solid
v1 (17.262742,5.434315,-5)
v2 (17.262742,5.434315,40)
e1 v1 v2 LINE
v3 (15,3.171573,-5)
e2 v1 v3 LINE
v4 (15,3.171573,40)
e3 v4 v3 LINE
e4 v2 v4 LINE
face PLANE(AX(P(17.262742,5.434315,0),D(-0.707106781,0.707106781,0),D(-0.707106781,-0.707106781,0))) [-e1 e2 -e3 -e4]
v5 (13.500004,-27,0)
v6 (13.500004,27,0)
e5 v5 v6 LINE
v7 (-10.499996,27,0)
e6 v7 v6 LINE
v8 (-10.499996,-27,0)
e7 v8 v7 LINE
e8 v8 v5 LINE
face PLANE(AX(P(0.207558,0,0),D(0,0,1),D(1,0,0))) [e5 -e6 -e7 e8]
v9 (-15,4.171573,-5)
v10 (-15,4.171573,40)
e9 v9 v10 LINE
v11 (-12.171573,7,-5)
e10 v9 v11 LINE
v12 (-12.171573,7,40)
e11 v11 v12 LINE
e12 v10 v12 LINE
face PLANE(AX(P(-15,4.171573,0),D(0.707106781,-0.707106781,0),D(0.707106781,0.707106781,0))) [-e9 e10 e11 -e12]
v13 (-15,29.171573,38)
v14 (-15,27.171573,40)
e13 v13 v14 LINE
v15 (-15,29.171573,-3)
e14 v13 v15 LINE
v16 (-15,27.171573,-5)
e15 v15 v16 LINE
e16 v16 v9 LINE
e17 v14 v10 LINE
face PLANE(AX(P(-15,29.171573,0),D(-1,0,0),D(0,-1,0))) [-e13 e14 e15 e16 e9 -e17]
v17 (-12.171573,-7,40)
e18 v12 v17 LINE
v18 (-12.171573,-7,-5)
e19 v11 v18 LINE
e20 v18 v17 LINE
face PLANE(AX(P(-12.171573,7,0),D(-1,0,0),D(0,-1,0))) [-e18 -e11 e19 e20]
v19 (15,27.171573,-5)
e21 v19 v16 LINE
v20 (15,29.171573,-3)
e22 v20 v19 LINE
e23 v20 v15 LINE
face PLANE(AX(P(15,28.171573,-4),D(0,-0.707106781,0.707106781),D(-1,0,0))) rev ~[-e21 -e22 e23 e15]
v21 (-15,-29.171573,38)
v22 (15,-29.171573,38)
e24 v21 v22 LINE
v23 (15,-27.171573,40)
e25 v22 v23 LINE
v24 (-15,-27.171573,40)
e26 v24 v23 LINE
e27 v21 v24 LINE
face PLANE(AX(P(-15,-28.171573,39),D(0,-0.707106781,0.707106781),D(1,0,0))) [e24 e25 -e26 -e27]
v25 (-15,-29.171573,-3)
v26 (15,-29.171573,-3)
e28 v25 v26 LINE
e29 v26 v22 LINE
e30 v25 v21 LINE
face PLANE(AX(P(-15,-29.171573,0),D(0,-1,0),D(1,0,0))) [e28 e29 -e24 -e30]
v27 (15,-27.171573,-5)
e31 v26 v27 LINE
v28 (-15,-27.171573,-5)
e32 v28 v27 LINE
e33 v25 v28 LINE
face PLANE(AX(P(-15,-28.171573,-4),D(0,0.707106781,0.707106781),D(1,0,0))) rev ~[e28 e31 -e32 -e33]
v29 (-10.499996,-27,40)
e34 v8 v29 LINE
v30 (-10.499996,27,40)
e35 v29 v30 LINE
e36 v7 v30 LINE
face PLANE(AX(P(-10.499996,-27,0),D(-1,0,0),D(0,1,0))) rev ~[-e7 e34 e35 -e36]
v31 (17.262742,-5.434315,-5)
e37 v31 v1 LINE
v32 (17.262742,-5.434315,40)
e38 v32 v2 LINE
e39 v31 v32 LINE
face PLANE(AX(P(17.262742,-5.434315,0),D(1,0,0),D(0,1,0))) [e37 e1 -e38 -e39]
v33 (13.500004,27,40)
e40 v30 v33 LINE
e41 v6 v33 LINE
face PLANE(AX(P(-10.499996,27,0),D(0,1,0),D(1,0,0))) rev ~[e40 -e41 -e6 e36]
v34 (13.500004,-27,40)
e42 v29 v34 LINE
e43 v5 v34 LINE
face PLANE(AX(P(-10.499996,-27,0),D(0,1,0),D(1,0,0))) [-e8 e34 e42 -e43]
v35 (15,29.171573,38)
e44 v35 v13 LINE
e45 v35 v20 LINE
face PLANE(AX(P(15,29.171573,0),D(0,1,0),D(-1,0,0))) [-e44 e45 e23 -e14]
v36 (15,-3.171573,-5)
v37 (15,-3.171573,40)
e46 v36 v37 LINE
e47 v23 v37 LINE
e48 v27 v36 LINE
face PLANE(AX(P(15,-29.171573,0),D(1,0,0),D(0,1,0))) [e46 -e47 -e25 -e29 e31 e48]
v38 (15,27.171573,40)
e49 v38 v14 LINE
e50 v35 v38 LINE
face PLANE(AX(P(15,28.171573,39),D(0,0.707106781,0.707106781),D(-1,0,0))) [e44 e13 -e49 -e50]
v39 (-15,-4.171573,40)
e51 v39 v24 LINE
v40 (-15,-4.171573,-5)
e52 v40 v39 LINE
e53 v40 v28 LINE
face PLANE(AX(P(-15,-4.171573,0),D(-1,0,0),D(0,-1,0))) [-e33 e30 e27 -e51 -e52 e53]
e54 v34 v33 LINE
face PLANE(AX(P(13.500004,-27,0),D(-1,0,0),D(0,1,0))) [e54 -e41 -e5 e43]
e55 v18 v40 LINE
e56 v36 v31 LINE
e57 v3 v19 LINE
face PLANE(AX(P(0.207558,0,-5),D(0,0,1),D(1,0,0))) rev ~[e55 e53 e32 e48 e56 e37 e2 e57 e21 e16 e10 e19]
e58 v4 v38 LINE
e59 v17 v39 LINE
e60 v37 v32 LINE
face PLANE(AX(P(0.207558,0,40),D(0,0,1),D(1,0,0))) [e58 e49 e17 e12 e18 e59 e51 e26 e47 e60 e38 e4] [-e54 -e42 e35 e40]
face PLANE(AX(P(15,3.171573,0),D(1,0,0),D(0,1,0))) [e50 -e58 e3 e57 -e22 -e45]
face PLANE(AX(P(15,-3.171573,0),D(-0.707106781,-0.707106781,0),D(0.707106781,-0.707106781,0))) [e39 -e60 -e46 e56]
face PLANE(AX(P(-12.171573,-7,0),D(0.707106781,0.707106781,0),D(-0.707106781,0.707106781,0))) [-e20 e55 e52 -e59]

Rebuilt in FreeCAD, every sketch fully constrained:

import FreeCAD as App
import Part
import Sketcher

V = App.Vector
Q = App.Units.Quantity


def edges_at(feature, points):
    """Names of the edges that pass closest to the given points."""
    edges = feature.Shape.Edges
    near = lambda p: min(range(len(edges)), key=lambda i: edges[i].distToShape(Part.Vertex(*p))[0])
    return sorted({f"Edge{near(p) + 1}" for p in points})


def add_polygon(sketch, points):
    """Adds a closed chain of lines whose ends are joined by coincident constraints."""
    first, n = sketch.GeometryCount, len(points)
    for a, b in zip(points, points[1:] + points[:1]):
        sketch.addGeometry(Part.LineSegment(App.Vector(*a, 0), App.Vector(*b, 0)), False)
    for i in range(n):
        sketch.addConstraint(Sketcher.Constraint("Coincident", first + i, 2, first + (i + 1) % n, 1))

doc = App.newDocument("Part")
body = doc.addObject("PartDesign::Body", "Body")

# Sketch on XY plane
sketch1 = doc.addObject("Sketcher::SketchObject", "Sketch")
body.addObject(sketch1)
sketch1.AttachmentSupport = (doc.XY_Plane, [""])
sketch1.MapMode = "FlatFace"
add_polygon(sketch1, [(-15, 29.2), (-15, 4.2), (-12.2, 7), (-12.2, -7), (-15, -4.2), (-15, -29.2), (15, -29.2), (15, -3.2), (17.3, -5.4), (17.3, 5.4), (15, 3.2), (15, 29.2)])  # lines 0-11
add_polygon(sketch1, [(13.5, -27), (-10.5, -27), (-10.5, 27), (13.5, 27)])  # lines 12-15
sketch1.addConstraint([
    Sketcher.Constraint("Vertical", 0),
    Sketcher.Constraint("Vertical", 2),
    Sketcher.Constraint("Vertical", 4),
    Sketcher.Constraint("Horizontal", 5),
    Sketcher.Constraint("Vertical", 6),
    Sketcher.Constraint("Vertical", 8),
    Sketcher.Constraint("Vertical", 10),
    Sketcher.Constraint("Horizontal", 11),
    Sketcher.Constraint("Horizontal", 12),
    Sketcher.Constraint("Vertical", 13),
    Sketcher.Constraint("Horizontal", 14),
    Sketcher.Constraint("Vertical", 15),
    Sketcher.Constraint("Symmetric", 4, 2, 10, 2, -1, 1),
    Sketcher.Constraint("Symmetric", 0, 2, 3, 2, -1),
    Sketcher.Constraint("Symmetric", 6, 2, 9, 2, -1),
    Sketcher.Constraint("Perpendicular", 1, 3),
    Sketcher.Constraint("Parallel", 3, 7),
    Sketcher.Constraint("Perpendicular", 7, 9),
    Sketcher.Constraint("Equal", 1, 3),
    Sketcher.Constraint("DistanceX", 5, 1, 5, 2, Q("30 mm")),
    Sketcher.Constraint("DistanceX", 12, 2, 12, 1, Q("24 mm")),
    Sketcher.Constraint("DistanceY", 0, 2, 0, 1, Q("25 mm")),
    Sketcher.Constraint("DistanceY", 2, 2, 2, 1, Q("14 mm")),
    Sketcher.Constraint("DistanceY", 6, 1, 6, 2, Q("26 mm")),
    Sketcher.Constraint("DistanceY", 13, 1, 13, 2, Q("54 mm")),
    Sketcher.Constraint("Distance", 1, Q("4 mm")),
    Sketcher.Constraint("DistanceY", 12, 2, -1, 1, Q("27 mm")),
    Sketcher.Constraint("Distance", 7, Q("3.2 mm")),
    Sketcher.Constraint("DistanceX", 12, 2, -1, 1, Q("10.499996 mm")),
])
pad1 = doc.addObject("PartDesign::Pad", "Pad")
body.addObject(pad1)
pad1.Profile = sketch1
pad1.Length = 40

# Sketch on XY plane
sketch2 = doc.addObject("Sketcher::SketchObject", "Sketch001")
body.addObject(sketch2)
sketch2.AttachmentSupport = (doc.XY_Plane, [""])
sketch2.MapMode = "FlatFace"
add_polygon(sketch2, [(-15, 29.2), (-15, 4.2), (-12.2, 7), (-12.2, -7), (-15, -4.2), (-15, -29.2), (15, -29.2), (15, -3.2), (17.3, -5.4), (17.3, 5.4), (15, 3.2), (15, 29.2)])  # lines 0-11
sketch2.addConstraint([
    Sketcher.Constraint("Vertical", 0),
    Sketcher.Constraint("Vertical", 2),
    Sketcher.Constraint("Vertical", 4),
    Sketcher.Constraint("Horizontal", 5),
    Sketcher.Constraint("Vertical", 6),
    Sketcher.Constraint("Vertical", 8),
    Sketcher.Constraint("Vertical", 10),
    Sketcher.Constraint("Horizontal", 11),
    Sketcher.Constraint("Symmetric", 4, 2, 10, 2, -1, 1),
    Sketcher.Constraint("Symmetric", 0, 2, 3, 2, -1),
    Sketcher.Constraint("Symmetric", 6, 2, 9, 2, -1),
    Sketcher.Constraint("Perpendicular", 1, 3),
    Sketcher.Constraint("Parallel", 3, 7),
    Sketcher.Constraint("Perpendicular", 7, 9),
    Sketcher.Constraint("Equal", 1, 3),
    Sketcher.Constraint("DistanceX", 5, 1, 5, 2, Q("30 mm")),
    Sketcher.Constraint("DistanceY", 0, 2, 0, 1, Q("25 mm")),
    Sketcher.Constraint("DistanceY", 2, 2, 2, 1, Q("14 mm")),
    Sketcher.Constraint("DistanceY", 6, 1, 6, 2, Q("26 mm")),
    Sketcher.Constraint("Distance", 1, Q("4 mm")),
    Sketcher.Constraint("Distance", 7, Q("3.2 mm")),
])
pad2 = doc.addObject("PartDesign::Pad", "Pad001")
body.addObject(pad2)
pad2.Profile = sketch2
pad2.Length = 5
pad2.Reversed = True
doc.recompute()

chamfer = doc.addObject("PartDesign::Chamfer", "Chamfer")
body.addObject(chamfer)
chamfer.Base = (pad2, edges_at(pad2, [
    (0, -29.172, -5),
    (0, 29.172, -5),
    (0, -29.172, 40),
    (0, 29.172, 40),
]))
chamfer.Size = 2

doc.recompute()
